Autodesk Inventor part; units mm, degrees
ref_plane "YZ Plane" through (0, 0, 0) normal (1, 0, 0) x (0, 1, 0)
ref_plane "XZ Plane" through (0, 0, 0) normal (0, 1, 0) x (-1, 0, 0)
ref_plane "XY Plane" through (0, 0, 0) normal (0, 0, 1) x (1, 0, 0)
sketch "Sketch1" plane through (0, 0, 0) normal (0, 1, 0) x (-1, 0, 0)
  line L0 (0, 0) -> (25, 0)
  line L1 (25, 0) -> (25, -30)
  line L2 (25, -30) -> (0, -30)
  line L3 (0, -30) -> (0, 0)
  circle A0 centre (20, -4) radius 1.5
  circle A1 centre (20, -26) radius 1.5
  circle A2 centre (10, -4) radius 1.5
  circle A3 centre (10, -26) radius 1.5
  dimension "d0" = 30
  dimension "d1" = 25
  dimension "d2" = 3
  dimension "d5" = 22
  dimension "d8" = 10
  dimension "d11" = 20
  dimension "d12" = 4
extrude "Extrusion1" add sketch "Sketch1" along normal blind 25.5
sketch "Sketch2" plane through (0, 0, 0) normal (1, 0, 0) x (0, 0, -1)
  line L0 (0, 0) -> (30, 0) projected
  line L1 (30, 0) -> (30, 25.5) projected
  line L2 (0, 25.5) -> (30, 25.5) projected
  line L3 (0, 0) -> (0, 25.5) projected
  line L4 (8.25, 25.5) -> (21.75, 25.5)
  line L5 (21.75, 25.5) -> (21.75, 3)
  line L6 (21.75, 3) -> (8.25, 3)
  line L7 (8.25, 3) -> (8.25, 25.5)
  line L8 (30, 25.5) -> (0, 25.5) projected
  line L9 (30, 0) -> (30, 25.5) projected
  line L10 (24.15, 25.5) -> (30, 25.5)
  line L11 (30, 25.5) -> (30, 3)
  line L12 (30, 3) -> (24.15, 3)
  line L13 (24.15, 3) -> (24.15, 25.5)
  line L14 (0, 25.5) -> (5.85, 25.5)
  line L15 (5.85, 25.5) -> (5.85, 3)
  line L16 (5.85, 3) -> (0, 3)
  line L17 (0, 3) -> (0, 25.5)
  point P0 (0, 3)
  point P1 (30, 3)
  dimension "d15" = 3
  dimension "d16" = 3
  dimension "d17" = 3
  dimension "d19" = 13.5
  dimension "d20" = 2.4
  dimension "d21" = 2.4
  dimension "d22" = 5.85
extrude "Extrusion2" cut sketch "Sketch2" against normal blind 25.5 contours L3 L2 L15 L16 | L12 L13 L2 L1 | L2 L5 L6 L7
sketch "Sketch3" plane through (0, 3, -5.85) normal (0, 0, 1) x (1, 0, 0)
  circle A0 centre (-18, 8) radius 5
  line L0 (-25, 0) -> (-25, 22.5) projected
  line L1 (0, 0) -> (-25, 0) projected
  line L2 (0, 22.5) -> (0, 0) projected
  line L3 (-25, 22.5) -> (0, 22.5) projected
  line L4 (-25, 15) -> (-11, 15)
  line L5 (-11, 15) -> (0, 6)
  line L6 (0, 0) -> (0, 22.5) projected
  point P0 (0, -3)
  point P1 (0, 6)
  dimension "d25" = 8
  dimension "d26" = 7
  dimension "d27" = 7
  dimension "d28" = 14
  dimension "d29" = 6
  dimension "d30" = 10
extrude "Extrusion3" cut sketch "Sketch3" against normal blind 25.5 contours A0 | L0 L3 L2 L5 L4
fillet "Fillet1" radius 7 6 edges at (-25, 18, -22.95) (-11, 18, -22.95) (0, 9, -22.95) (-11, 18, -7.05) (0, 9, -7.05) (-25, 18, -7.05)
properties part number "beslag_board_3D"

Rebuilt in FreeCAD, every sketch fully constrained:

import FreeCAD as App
import Part
import Sketcher

V = App.Vector


def edges_at(feature, points):
    """Names of the edges that pass closest to the given points."""
    edges = feature.Shape.Edges
    near = lambda p: min(range(len(edges)), key=lambda i: edges[i].distToShape(Part.Vertex(*p))[0])
    return sorted({f"Edge{near(p) + 1}" for p in points})

doc = App.newDocument("Part")
body = doc.addObject("PartDesign::Body", "Body")

sketch1 = doc.addObject("Sketcher::SketchObject", "Sketch")
body.addObject(sketch1)
sketch1.AttachmentSupport = (doc.XZ_Plane, [""])
sketch1.MapMode = "FlatFace"
sketch1.addGeometry(Part.LineSegment(V(-25, 0, 0), V(0, 0, 0)), False)
sketch1.addGeometry(Part.LineSegment(V(0, 0, 0), V(0, -30, 0)), False)
sketch1.addGeometry(Part.LineSegment(V(0, -30, 0), V(-25, -30, 0)), False)
sketch1.addGeometry(Part.LineSegment(V(-25, -30, 0), V(-25, 0, 0)), False)
sketch1.addGeometry(Part.Circle(V(-10, -26, 0), V(0, 0, 1), 1.5), False)
sketch1.addGeometry(Part.Circle(V(-20, -26, 0), V(0, 0, 1), 1.5), False)
sketch1.addGeometry(Part.Circle(V(-10, -4, 0), V(0, 0, 1), 1.5), False)
sketch1.addGeometry(Part.Circle(V(-20, -4, 0), V(0, 0, 1), 1.5), False)
sketch1.addConstraint(Sketcher.Constraint("Coincident", 0, 2, 1, 1))
sketch1.addConstraint(Sketcher.Constraint("Coincident", 1, 2, 2, 1))
sketch1.addConstraint(Sketcher.Constraint("Coincident", 2, 2, 3, 1))
sketch1.addConstraint(Sketcher.Constraint("Coincident", 3, 2, 0, 1))
sketch1.addConstraint(Sketcher.Constraint("Horizontal", 0))
sketch1.addConstraint(Sketcher.Constraint("Vertical", 1))
sketch1.addConstraint(Sketcher.Constraint("Horizontal", 2))
sketch1.addConstraint(Sketcher.Constraint("Vertical", 3))
sketch1.addConstraint(Sketcher.Constraint("Coincident", 0, 2, -1, 1))
sketch1.addConstraint(Sketcher.Constraint("Equal", 4, 5))
sketch1.addConstraint(Sketcher.Constraint("Equal", 5, 6))
sketch1.addConstraint(Sketcher.Constraint("Equal", 6, 7))
sketch1.addConstraint(Sketcher.Constraint("Horizontal", 4, 3, 5, 3))
sketch1.addConstraint(Sketcher.Constraint("Horizontal", 6, 3, 7, 3))
sketch1.addConstraint(Sketcher.Constraint("Vertical", 4, 3, 6, 3))
sketch1.addConstraint(Sketcher.Constraint("Vertical", 5, 3, 7, 3))
sketch1.addConstraint(Sketcher.Constraint("Diameter", 4, 3.0))
sketch1.addConstraint(Sketcher.Constraint("DistanceX", 0, 1, 0, 2, 25.0))
sketch1.addConstraint(Sketcher.Constraint("DistanceY", 1, 2, 1, 1, 30.0))
sketch1.addConstraint(Sketcher.Constraint("DistanceX", 4, 3, -1, 1, 10.0))
sketch1.addConstraint(Sketcher.Constraint("DistanceX", 5, 3, -1, 1, 20.0))
sketch1.addConstraint(Sketcher.Constraint("DistanceY", 6, 3, -1, 1, 4.0))
sketch1.addConstraint(Sketcher.Constraint("DistanceY", 4, 3, 6, 3, 22.0))
pad1 = doc.addObject("PartDesign::Pad", "Pad")
body.addObject(pad1)
pad1.Profile = sketch1
pad1.Length = 25.5
pad1.Reversed = True

sketch2 = doc.addObject("Sketcher::SketchObject", "Sketch001")
body.addObject(sketch2)
sketch2.AttachmentSupport = (doc.YZ_Plane, [""])
sketch2.MapMode = "FlatFace"
sketch2.addGeometry(Part.LineSegment(V(26, 0, 0), V(3, 0, 0)), False)
sketch2.addGeometry(Part.LineSegment(V(3, 0, 0), V(3, -6, 0)), False)
sketch2.addGeometry(Part.LineSegment(V(3, -6, 0), V(26, -6, 0)), False)
sketch2.addGeometry(Part.LineSegment(V(26, -6, 0), V(26, 0, 0)), False)
sketch2.addGeometry(Part.LineSegment(V(3, -24, 0), V(3, -30, 0)), False)
sketch2.addGeometry(Part.LineSegment(V(3, -30, 0), V(26, -30, 0)), False)
sketch2.addGeometry(Part.LineSegment(V(26, -30, 0), V(26, -24, 0)), False)
sketch2.addGeometry(Part.LineSegment(V(26, -24, 0), V(3, -24, 0)), False)
sketch2.addGeometry(Part.LineSegment(V(26, -22, 0), V(26, -8, 0)), False)
sketch2.addGeometry(Part.LineSegment(V(26, -8, 0), V(3, -8, 0)), False)
sketch2.addGeometry(Part.LineSegment(V(3, -8, 0), V(3, -22, 0)), False)
sketch2.addGeometry(Part.LineSegment(V(3, -22, 0), V(26, -22, 0)), False)
sketch2.addConstraint(Sketcher.Constraint("Coincident", 0, 2, 1, 1))
sketch2.addConstraint(Sketcher.Constraint("Coincident", 1, 2, 2, 1))
sketch2.addConstraint(Sketcher.Constraint("Coincident", 2, 2, 3, 1))
sketch2.addConstraint(Sketcher.Constraint("Coincident", 3, 2, 0, 1))
sketch2.addConstraint(Sketcher.Constraint("Coincident", 4, 2, 5, 1))
sketch2.addConstraint(Sketcher.Constraint("Coincident", 5, 2, 6, 1))
sketch2.addConstraint(Sketcher.Constraint("Coincident", 6, 2, 7, 1))
sketch2.addConstraint(Sketcher.Constraint("Coincident", 7, 2, 4, 1))
sketch2.addConstraint(Sketcher.Constraint("Coincident", 8, 2, 9, 1))
sketch2.addConstraint(Sketcher.Constraint("Coincident", 9, 2, 10, 1))
sketch2.addConstraint(Sketcher.Constraint("Coincident", 10, 2, 11, 1))
sketch2.addConstraint(Sketcher.Constraint("Coincident", 11, 2, 8, 1))
sketch2.addConstraint(Sketcher.Constraint("Horizontal", 0))
sketch2.addConstraint(Sketcher.Constraint("Vertical", 1))
sketch2.addConstraint(Sketcher.Constraint("Horizontal", 2))
sketch2.addConstraint(Sketcher.Constraint("Vertical", 3))
sketch2.addConstraint(Sketcher.Constraint("Vertical", 4))
sketch2.addConstraint(Sketcher.Constraint("Horizontal", 5))
sketch2.addConstraint(Sketcher.Constraint("Vertical", 6))
sketch2.addConstraint(Sketcher.Constraint("Horizontal", 7))
sketch2.addConstraint(Sketcher.Constraint("Vertical", 8))
sketch2.addConstraint(Sketcher.Constraint("Horizontal", 9))
sketch2.addConstraint(Sketcher.Constraint("Vertical", 10))
sketch2.addConstraint(Sketcher.Constraint("Horizontal", 11))
sketch2.addConstraint(Sketcher.Constraint("PointOnObject", 0, 2, -1))
sketch2.addConstraint(Sketcher.Constraint("Vertical", 1, 2, 4, 2))
sketch2.addConstraint(Sketcher.Constraint("Vertical", 3, 2, 5, 2))
sketch2.addConstraint(Sketcher.Constraint("Vertical", 6, 2, 8, 2))
sketch2.addConstraint(Sketcher.Constraint("Vertical", 7, 2, 9, 2))
sketch2.addConstraint(Sketcher.Constraint("Equal", 3, 4))
sketch2.addConstraint(Sketcher.Constraint("DistanceY", 8, 1, 8, 2, 13.5))
sketch2.addConstraint(Sketcher.Constraint("DistanceX", -1, 1, 0, 2, 3.0))
sketch2.addConstraint(Sketcher.Constraint("DistanceY", 1, 2, 1, 1, 5.85))
sketch2.addConstraint(Sketcher.Constraint("DistanceY", 8, 2, 2, 2, 2.4))
sketch2.addConstraint(Sketcher.Constraint("DistanceY", 7, 2, 10, 2, 2.4))
sketch2.addConstraint(Sketcher.Constraint("DistanceX", 0, 2, 0, 1, 22.5))
pocket1 = doc.addObject("PartDesign::Pocket", "Pocket")
body.addObject(pocket1)
pocket1.Profile = sketch2
pocket1.Length = 25.5

sketch3 = doc.addObject("Sketcher::SketchObject", "Sketch002")
body.addObject(sketch3)
sketch3.AttachmentSupport = (doc.XY_Plane, [""])
sketch3.MapMode = "FlatFace"
sketch3.AttachmentOffset = App.Placement(V(0, 0, -5.85), App.Rotation())
sketch3.addGeometry(Part.Circle(V(-18, 11, 0), V(0, 0, 1), 5), False)
sketch3.addGeometry(Part.LineSegment(V(-25, 26, 0), V(-25, 18, 0)), False)
sketch3.addGeometry(Part.LineSegment(V(-25, 18, 0), V(-11, 18, 0)), False)
sketch3.addGeometry(Part.LineSegment(V(-11, 18, 0), V(0, 9, 0)), False)
sketch3.addGeometry(Part.LineSegment(V(0, 9, 0), V(0, 26, 0)), False)
sketch3.addGeometry(Part.LineSegment(V(0, 26, 0), V(-25, 26, 0)), False)
sketch3.addConstraint(Sketcher.Constraint("Coincident", 1, 2, 2, 1))
sketch3.addConstraint(Sketcher.Constraint("Coincident", 2, 2, 3, 1))
sketch3.addConstraint(Sketcher.Constraint("Coincident", 3, 2, 4, 1))
sketch3.addConstraint(Sketcher.Constraint("Coincident", 4, 2, 5, 1))
sketch3.addConstraint(Sketcher.Constraint("Coincident", 5, 2, 1, 1))
sketch3.addConstraint(Sketcher.Constraint("Vertical", 1))
sketch3.addConstraint(Sketcher.Constraint("Horizontal", 2))
sketch3.addConstraint(Sketcher.Constraint("Vertical", 4))
sketch3.addConstraint(Sketcher.Constraint("Horizontal", 5))
sketch3.addConstraint(Sketcher.Constraint("PointOnObject", 3, 2, -2))
sketch3.addConstraint(Sketcher.Constraint("Diameter", 0, 10.0))
sketch3.addConstraint(Sketcher.Constraint("DistanceX", 2, 1, 2, 2, 14.0))
sketch3.addConstraint(Sketcher.Constraint("DistanceX", 1, 2, 0, 3, 7.0))
sketch3.addConstraint(Sketcher.Constraint("DistanceY", 0, 3, 1, 2, 7.0))
sketch3.addConstraint(Sketcher.Constraint("DistanceX", 5, 2, 5, 1, 25.0))
sketch3.addConstraint(Sketcher.Constraint("DistanceY", 1, 2, 1, 1, 7.5))
sketch3.addConstraint(Sketcher.Constraint("DistanceY", 4, 1, 4, 2, 16.5))
sketch3.addConstraint(Sketcher.Constraint("DistanceY", -1, 1, 0, 3, 11.0))
pocket2 = doc.addObject("PartDesign::Pocket", "Pocket001")
body.addObject(pocket2)
pocket2.Profile = sketch3
pocket2.Length = 25.5
doc.recompute()

fillet = doc.addObject("PartDesign::Fillet", "Fillet")
body.addObject(fillet)
fillet.Base = (pocket2, edges_at(pocket2, [
    (-25, 18, -22.95),
    (-11, 18, -22.95),
    (0, 9, -22.95),
    (-11, 18, -7.05),
    (0, 9, -7.05),
    (-25, 18, -7.05),
]))
fillet.Radius = 7

doc.recompute()
